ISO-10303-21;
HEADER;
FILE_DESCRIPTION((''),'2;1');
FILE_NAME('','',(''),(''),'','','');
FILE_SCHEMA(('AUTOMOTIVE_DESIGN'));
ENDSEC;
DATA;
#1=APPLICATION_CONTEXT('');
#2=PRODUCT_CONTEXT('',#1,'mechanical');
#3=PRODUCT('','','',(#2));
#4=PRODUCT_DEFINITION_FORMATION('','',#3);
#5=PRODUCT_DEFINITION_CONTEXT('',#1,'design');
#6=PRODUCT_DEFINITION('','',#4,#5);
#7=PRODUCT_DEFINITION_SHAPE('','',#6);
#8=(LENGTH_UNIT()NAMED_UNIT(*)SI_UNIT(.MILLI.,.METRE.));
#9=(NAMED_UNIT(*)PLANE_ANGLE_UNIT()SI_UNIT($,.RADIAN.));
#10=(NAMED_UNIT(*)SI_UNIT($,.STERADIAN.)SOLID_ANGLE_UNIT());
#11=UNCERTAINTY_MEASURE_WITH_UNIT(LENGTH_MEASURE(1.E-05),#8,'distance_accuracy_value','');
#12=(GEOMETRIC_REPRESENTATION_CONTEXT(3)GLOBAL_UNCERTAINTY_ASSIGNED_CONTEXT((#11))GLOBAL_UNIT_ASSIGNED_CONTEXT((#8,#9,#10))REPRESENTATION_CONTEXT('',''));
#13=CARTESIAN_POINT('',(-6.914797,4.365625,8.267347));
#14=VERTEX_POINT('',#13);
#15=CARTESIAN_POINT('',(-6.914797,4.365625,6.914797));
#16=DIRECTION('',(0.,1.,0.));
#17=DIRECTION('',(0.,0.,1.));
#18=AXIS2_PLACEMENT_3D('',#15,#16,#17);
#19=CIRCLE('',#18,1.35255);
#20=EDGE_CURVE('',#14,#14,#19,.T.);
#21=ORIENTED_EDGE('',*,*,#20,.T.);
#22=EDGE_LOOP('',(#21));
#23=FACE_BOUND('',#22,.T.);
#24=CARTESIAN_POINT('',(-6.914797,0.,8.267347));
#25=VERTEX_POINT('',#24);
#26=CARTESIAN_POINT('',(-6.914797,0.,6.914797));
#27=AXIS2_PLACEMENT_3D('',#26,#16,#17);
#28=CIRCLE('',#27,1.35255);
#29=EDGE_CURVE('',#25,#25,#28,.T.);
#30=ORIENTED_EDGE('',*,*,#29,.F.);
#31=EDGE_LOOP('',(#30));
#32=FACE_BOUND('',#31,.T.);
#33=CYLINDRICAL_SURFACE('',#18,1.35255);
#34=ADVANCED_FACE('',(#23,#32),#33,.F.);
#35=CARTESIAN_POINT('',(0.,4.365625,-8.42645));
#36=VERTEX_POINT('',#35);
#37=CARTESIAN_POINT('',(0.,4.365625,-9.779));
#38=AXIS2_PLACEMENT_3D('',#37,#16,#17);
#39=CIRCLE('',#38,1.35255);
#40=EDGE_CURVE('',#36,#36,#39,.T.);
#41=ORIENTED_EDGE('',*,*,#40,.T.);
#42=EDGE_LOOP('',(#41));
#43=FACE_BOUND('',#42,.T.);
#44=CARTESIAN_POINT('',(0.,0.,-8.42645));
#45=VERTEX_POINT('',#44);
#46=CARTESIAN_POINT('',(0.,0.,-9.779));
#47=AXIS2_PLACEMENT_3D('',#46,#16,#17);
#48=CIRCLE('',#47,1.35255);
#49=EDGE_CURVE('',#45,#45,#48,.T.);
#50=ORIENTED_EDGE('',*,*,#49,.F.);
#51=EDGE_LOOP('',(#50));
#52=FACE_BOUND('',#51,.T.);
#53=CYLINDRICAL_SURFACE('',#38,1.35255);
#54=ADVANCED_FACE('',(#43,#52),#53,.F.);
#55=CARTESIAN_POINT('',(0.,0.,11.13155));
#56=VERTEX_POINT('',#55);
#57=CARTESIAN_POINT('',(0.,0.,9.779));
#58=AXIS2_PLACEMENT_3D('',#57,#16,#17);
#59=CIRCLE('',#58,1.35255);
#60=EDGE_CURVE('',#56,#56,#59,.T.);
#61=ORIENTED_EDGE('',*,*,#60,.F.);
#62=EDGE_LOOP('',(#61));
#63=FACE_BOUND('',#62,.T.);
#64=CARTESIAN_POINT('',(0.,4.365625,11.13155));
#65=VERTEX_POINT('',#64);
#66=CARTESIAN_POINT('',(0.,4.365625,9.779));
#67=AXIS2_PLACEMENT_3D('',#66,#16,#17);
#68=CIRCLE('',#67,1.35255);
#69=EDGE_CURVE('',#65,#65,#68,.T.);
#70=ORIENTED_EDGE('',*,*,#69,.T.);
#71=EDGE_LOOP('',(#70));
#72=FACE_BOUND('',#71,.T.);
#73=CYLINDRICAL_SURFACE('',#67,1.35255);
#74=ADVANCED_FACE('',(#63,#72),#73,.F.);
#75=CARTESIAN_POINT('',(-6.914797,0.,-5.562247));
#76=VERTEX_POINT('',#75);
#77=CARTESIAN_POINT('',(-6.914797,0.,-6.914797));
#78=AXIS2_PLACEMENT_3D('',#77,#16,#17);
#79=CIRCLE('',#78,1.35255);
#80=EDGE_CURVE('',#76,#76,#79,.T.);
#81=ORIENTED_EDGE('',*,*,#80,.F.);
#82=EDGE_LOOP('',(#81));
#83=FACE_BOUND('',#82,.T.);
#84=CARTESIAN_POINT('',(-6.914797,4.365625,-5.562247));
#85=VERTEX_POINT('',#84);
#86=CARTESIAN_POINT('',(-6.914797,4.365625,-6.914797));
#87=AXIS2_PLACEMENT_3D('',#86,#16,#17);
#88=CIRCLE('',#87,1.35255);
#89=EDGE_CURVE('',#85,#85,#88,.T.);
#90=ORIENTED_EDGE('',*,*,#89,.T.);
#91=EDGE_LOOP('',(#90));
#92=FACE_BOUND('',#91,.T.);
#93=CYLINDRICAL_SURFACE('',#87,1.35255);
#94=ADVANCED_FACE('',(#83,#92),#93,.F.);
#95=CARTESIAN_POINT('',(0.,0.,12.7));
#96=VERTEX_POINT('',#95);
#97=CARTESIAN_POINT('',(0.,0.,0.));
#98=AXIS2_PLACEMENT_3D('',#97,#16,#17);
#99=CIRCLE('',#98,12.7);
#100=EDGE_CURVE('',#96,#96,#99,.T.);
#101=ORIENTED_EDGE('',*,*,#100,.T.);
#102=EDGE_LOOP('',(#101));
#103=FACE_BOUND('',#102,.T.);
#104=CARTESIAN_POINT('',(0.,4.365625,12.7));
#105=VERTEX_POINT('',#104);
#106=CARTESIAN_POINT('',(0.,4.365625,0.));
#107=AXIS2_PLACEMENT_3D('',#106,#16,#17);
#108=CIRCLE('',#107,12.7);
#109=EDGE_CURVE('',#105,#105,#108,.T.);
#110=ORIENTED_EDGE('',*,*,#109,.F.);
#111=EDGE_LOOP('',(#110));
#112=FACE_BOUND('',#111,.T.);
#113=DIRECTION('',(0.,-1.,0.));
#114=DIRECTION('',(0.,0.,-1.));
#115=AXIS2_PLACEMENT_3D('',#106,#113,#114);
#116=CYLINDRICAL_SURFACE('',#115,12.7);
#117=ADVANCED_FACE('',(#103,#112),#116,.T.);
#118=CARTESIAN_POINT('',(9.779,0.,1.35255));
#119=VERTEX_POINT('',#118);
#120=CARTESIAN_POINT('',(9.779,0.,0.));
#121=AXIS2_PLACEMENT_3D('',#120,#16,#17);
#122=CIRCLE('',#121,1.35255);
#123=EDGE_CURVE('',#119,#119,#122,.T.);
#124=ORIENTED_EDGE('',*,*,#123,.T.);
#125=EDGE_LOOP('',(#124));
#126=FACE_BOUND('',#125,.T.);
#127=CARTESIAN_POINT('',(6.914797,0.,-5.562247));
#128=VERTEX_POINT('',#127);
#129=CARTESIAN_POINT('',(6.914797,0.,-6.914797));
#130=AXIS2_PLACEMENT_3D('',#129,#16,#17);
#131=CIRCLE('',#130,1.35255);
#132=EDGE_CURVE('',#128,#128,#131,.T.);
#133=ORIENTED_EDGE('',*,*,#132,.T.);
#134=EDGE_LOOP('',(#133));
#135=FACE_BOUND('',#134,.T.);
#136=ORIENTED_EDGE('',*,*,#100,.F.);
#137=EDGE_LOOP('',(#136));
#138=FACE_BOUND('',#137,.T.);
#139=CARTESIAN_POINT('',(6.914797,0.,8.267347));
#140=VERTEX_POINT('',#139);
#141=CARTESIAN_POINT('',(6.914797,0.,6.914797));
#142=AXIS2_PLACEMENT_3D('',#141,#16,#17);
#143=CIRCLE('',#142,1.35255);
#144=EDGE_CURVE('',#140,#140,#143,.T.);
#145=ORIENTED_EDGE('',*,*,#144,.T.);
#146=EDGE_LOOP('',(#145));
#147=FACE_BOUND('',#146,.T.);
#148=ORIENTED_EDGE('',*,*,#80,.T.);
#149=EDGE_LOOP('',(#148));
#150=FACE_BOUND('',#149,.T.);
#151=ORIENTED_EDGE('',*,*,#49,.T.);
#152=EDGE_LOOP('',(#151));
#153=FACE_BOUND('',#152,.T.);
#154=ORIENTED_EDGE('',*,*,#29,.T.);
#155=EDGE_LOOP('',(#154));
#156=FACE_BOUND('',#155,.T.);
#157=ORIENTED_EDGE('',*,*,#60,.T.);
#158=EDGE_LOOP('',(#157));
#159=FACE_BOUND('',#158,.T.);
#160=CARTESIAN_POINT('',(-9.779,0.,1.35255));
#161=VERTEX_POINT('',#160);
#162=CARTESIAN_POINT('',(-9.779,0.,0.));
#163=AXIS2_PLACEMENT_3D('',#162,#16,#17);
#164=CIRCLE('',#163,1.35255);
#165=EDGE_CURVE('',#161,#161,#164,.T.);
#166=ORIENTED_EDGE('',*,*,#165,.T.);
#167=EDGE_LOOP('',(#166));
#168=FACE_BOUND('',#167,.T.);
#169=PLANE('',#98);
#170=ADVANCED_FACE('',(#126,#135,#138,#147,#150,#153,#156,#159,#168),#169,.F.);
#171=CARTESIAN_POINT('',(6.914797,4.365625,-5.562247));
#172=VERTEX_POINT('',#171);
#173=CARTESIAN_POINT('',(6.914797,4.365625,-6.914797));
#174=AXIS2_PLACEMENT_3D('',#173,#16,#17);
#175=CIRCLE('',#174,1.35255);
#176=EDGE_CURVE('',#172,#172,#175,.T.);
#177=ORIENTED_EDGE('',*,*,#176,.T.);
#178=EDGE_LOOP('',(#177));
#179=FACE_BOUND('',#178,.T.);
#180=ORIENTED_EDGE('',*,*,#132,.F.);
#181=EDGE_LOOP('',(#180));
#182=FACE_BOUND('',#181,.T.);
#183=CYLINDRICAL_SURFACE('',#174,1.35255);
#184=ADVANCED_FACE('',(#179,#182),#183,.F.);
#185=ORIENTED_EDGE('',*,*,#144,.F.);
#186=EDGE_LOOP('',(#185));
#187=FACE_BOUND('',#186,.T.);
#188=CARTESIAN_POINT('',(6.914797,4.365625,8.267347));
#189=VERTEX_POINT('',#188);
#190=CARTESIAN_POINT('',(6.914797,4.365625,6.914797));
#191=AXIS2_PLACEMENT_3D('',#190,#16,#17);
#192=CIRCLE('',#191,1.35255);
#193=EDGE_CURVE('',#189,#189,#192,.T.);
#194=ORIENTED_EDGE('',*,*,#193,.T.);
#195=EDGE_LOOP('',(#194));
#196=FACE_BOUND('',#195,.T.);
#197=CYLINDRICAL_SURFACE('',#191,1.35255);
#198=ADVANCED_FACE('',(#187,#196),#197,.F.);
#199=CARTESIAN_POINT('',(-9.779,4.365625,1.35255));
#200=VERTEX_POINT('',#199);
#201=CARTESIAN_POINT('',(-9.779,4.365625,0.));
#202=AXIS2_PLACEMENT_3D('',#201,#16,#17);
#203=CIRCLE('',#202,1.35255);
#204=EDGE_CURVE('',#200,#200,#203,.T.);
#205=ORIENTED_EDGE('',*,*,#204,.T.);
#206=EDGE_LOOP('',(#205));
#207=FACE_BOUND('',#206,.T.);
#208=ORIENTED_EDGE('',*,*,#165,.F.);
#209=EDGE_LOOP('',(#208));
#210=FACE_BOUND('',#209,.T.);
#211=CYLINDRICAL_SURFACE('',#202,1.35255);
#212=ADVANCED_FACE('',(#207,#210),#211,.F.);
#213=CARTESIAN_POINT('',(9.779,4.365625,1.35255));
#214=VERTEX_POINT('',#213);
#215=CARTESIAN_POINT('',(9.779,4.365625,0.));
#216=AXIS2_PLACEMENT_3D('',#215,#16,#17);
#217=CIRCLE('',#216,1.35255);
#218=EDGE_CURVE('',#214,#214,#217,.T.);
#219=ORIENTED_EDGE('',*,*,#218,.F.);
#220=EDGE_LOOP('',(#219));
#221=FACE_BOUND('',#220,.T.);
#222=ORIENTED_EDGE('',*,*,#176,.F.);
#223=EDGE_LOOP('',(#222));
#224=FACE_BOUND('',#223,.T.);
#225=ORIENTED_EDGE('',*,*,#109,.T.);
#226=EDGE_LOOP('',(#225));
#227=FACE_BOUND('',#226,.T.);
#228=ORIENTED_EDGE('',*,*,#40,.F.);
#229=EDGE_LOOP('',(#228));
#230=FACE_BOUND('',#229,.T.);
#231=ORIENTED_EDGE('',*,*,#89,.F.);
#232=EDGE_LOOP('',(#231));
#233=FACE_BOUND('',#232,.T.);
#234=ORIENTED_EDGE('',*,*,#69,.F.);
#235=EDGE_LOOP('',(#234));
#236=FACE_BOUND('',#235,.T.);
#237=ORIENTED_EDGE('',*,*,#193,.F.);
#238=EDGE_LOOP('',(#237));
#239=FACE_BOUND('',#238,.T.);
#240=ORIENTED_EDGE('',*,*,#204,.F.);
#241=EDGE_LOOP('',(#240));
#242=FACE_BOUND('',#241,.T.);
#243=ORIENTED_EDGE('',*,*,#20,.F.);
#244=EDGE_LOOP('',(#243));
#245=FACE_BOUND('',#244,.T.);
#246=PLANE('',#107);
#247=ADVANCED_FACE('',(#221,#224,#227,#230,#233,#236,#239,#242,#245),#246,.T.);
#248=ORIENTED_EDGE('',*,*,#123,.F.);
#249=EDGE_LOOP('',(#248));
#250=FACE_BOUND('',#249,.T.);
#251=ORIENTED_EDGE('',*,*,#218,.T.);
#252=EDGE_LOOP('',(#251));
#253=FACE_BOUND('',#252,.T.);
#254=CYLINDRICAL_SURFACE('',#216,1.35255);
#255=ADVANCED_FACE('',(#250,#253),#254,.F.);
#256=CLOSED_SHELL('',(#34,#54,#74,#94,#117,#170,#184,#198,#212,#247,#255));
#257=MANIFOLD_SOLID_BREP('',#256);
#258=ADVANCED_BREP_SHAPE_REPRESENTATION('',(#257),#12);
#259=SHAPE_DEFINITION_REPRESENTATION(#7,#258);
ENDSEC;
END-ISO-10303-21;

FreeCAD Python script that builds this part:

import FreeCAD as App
import Part
import Sketcher

V = App.Vector
Q = App.Units.Quantity

doc = App.newDocument("Part")
body = doc.addObject("PartDesign::Body", "Body")

# Sketch on XZ plane
sketch1 = doc.addObject("Sketcher::SketchObject", "Sketch")
body.addObject(sketch1)
sketch1.AttachmentSupport = (doc.XZ_Plane, [""])
sketch1.MapMode = "FlatFace"
sketch1.addGeometry(Part.Circle(V(0, 0, 0), V(0, 0, 1), 13), False)
sketch1.addConstraint([
    Sketcher.Constraint("Coincident", 0, 3, -1, 1),
    Sketcher.Constraint("Diameter", 0, Q("1 in")),
])
pad1 = doc.addObject("PartDesign::Pad", "Pad")
body.addObject(pad1)
pad1.Profile = sketch1
pad1.Length = Q("0.171875 in")
pad1.Reversed = True

# Sketch on XZ plane
sketch2 = doc.addObject("Sketcher::SketchObject", "Sketch001")
body.addObject(sketch2)
sketch2.AttachmentSupport = (doc.XZ_Plane, [""])
sketch2.MapMode = "FlatFace"
sketch2.AttachmentOffset = App.Placement(V(0, 0, -0.171875 * 25.4), App.Rotation())
sketch2.addGeometry([
    Part.Circle(V(0, -9.8, 0), V(0, 0, 1), 1.4),  # 0
    Part.Circle(V(6.9, -6.9, 0), V(0, 0, 1), 1.4),  # 1
    Part.Circle(V(9.8, 0, 0), V(0, 0, 1), 1.4),  # 2
    Part.Circle(V(6.9, 6.9, 0), V(0, 0, 1), 1.4),  # 3
    Part.Circle(V(0, 9.8, 0), V(0, 0, 1), 1.4),  # 4
    Part.Circle(V(-6.9, 6.9, 0), V(0, 0, 1), 1.4),  # 5
    Part.Circle(V(-9.8, 0, 0), V(0, 0, 1), 1.4),  # 6
    Part.Circle(V(-6.9, -6.9, 0), V(0, 0, 1), 1.4),  # 7
], False)
sketch2.addConstraint([
    Sketcher.Constraint("Equal", 0, 1),
    Sketcher.Constraint("Equal", 1, 2),
    Sketcher.Constraint("Equal", 2, 3),
    Sketcher.Constraint("Equal", 3, 4),
    Sketcher.Constraint("Equal", 4, 5),
    Sketcher.Constraint("Equal", 5, 6),
    Sketcher.Constraint("Equal", 6, 7),
    Sketcher.Constraint("Symmetric", 0, 3, 4, 3, -1, 1),
    Sketcher.Constraint("Symmetric", 1, 3, 5, 3, -1, 1),
    Sketcher.Constraint("Symmetric", 2, 3, 6, 3, -1, 1),
    Sketcher.Constraint("Symmetric", 3, 3, 7, 3, -1, 1),
    Sketcher.Constraint("Symmetric", 3, 3, 5, 3, -2),
    Sketcher.Constraint("PointOnObject", 0, 3, -2),
    Sketcher.Constraint("PointOnObject", 2, 3, -1),
    Sketcher.Constraint("Diameter", 0, Q("0.1065 in")),
    Sketcher.Constraint("DistanceY", 0, 3, 4, 3, Q("0.77 in")),
    Sketcher.Constraint("DistanceX", -1, 1, 2, 3, Q("0.385 in")),
    Sketcher.Constraint("DistanceX", -1, 1, 1, 3, Q("6.914797 mm")),
    Sketcher.Constraint("DistanceY", 1, 3, -1, 1, Q("6.914797 mm")),
])
doc.recompute()
hole = doc.addObject("PartDesign::Hole", "Hole")
body.addObject(hole)
hole.Profile = sketch2
hole.ThreadType = "None"
hole.Diameter = Q("0.1065 in")
hole.DepthType = "Dimension"
hole.Depth = Q("0.94 in")
hole.DrillPoint = "Angled"
hole.DrillPointAngle = 118
hole.Reversed = True

doc.recompute()
